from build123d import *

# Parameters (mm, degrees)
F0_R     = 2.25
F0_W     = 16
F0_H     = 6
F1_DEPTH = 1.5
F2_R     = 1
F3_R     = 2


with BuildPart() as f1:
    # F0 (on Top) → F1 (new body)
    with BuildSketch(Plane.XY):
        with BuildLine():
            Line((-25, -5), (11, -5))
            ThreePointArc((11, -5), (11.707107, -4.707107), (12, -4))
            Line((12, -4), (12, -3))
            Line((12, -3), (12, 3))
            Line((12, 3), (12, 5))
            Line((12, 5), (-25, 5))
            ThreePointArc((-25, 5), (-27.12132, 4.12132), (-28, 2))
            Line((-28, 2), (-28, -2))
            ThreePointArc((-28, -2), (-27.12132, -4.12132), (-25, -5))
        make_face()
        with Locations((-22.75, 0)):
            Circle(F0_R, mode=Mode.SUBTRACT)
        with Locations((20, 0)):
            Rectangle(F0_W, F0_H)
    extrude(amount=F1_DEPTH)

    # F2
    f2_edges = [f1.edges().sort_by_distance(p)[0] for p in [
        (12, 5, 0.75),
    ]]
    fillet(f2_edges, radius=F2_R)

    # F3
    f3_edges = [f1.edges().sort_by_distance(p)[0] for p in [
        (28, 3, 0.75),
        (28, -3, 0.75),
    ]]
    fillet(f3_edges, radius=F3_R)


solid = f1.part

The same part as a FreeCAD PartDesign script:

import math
import FreeCAD as App
import Part
import Sketcher
from FreeCAD import Vector


def edges_at(feature, points):
    """Names of the edges that pass closest to the given points."""
    edges = feature.Shape.Edges
    near = lambda p: min(range(len(edges)), key=lambda i: edges[i].distToShape(Part.Vertex(*p))[0])
    return sorted({f"Edge{near(p) + 1}" for p in points})

doc = App.newDocument("Part")
body = doc.addObject("PartDesign::Body", "Body")

# Sketch on XY plane
sketch1 = doc.addObject("Sketcher::SketchObject", "Sketch")
body.addObject(sketch1)
sketch1.AttachmentSupport = (doc.XY_Plane, [""])
sketch1.MapMode = "FlatFace"
sketch1.addGeometry([
    Part.LineSegment(Vector(-25, -5, 0), Vector(11, -5, 0)),  # 0
    Part.ArcOfCircle(Part.Circle(Vector(11.000001, -4.000001, 0), Vector(0, 0, 1), 0.999999), math.radians(-90.000043), math.radians(0.000043)),  # 1
    Part.LineSegment(Vector(12, -4, 0), Vector(12, -3, 0)),  # 2
    Part.LineSegment(Vector(12, -3, 0), Vector(28, -3, 0)),  # 3
    Part.LineSegment(Vector(28, -3, 0), Vector(28, 3, 0)),  # 4
    Part.LineSegment(Vector(28, 3, 0), Vector(12, 3, 0)),  # 5
    Part.LineSegment(Vector(12, 3, 0), Vector(12, 5, 0)),  # 6
    Part.LineSegment(Vector(12, 5, 0), Vector(-25, 5, 0)),  # 7
    Part.ArcOfCircle(Part.Circle(Vector(-24.999999, 1.999999, 0), Vector(0, 0, 1), 3.000001), math.radians(90.000022), math.radians(179.999978)),  # 8
    Part.LineSegment(Vector(-28, 2, 0), Vector(-28, -2, 0)),  # 9
    Part.ArcOfCircle(Part.Circle(Vector(-24.999999, -1.999999, 0), Vector(0, 0, 1), 3.000001), math.radians(-179.999978), math.radians(-90.000022)),  # 10
    Part.Circle(Vector(-22.75, 0, 0), Vector(0, 0, 1), 2.25),  # 11
], False)
sketch1.addConstraint([
    Sketcher.Constraint("Tangent", 0, 2, 1, 1),
    Sketcher.Constraint("Tangent", 1, 2, 2, 1),
    Sketcher.Constraint("Coincident", 2, 2, 3, 1),
    Sketcher.Constraint("Coincident", 3, 2, 4, 1),
    Sketcher.Constraint("Coincident", 4, 2, 5, 1),
    Sketcher.Constraint("Coincident", 5, 2, 6, 1),
    Sketcher.Constraint("Coincident", 6, 2, 7, 1),
    Sketcher.Constraint("Tangent", 7, 2, 8, 1),
    Sketcher.Constraint("Tangent", 8, 2, 9, 1),
    Sketcher.Constraint("Tangent", 9, 2, 10, 1),
    Sketcher.Constraint("Tangent", 10, 2, 0, 1),
    Sketcher.Constraint("Horizontal", 0),
    Sketcher.Constraint("Vertical", 2),
    Sketcher.Constraint("Horizontal", 3),
    Sketcher.Constraint("Vertical", 4),
    Sketcher.Constraint("Horizontal", 5),
    Sketcher.Constraint("Vertical", 6),
    Sketcher.Constraint("Horizontal", 7),
    Sketcher.Constraint("Vertical", 9),
    Sketcher.Constraint("Equal", 8, 10),
    Sketcher.Constraint("Symmetric", 2, 2, 5, 2, -1),
    Sketcher.Constraint("PointOnObject", 11, 3, -1),
    Sketcher.Constraint("Radius", 1, 0.999999),
    Sketcher.Constraint("Radius", 8, 3.000001),
    Sketcher.Constraint("Diameter", 11, 4.5),
    Sketcher.Constraint("DistanceX", 0, 1, 0, 2, 36.0),
    Sketcher.Constraint("DistanceX", 3, 1, 3, 2, 16.0),
    Sketcher.Constraint("DistanceY", 2, 1, 2, 2, 1.0),
    Sketcher.Constraint("DistanceY", 4, 1, 4, 2, 6.0),
    Sketcher.Constraint("DistanceY", 6, 1, 6, 2, 2.0),
    Sketcher.Constraint("DistanceX", -1, 1, 1, 3, 11.000001),
    Sketcher.Constraint("DistanceX", 11, 3, -1, 1, 22.75),
])
pad1 = doc.addObject("PartDesign::Pad", "Pad")
body.addObject(pad1)
pad1.Profile = sketch1
pad1.Length = 1.5
doc.recompute()

fillet = doc.addObject("PartDesign::Fillet", "Fillet")
body.addObject(fillet)
fillet.Base = (pad1, edges_at(pad1, [(12, 5, 0.75)]))
fillet.Radius = 1
doc.recompute()

fillet2 = doc.addObject("PartDesign::Fillet", "Fillet001")
body.addObject(fillet2)
fillet2.Base = (fillet, edges_at(fillet, [(28, 3, 0.75), (28, -3, 0.75)]))
fillet2.Radius = 2

doc.recompute()
